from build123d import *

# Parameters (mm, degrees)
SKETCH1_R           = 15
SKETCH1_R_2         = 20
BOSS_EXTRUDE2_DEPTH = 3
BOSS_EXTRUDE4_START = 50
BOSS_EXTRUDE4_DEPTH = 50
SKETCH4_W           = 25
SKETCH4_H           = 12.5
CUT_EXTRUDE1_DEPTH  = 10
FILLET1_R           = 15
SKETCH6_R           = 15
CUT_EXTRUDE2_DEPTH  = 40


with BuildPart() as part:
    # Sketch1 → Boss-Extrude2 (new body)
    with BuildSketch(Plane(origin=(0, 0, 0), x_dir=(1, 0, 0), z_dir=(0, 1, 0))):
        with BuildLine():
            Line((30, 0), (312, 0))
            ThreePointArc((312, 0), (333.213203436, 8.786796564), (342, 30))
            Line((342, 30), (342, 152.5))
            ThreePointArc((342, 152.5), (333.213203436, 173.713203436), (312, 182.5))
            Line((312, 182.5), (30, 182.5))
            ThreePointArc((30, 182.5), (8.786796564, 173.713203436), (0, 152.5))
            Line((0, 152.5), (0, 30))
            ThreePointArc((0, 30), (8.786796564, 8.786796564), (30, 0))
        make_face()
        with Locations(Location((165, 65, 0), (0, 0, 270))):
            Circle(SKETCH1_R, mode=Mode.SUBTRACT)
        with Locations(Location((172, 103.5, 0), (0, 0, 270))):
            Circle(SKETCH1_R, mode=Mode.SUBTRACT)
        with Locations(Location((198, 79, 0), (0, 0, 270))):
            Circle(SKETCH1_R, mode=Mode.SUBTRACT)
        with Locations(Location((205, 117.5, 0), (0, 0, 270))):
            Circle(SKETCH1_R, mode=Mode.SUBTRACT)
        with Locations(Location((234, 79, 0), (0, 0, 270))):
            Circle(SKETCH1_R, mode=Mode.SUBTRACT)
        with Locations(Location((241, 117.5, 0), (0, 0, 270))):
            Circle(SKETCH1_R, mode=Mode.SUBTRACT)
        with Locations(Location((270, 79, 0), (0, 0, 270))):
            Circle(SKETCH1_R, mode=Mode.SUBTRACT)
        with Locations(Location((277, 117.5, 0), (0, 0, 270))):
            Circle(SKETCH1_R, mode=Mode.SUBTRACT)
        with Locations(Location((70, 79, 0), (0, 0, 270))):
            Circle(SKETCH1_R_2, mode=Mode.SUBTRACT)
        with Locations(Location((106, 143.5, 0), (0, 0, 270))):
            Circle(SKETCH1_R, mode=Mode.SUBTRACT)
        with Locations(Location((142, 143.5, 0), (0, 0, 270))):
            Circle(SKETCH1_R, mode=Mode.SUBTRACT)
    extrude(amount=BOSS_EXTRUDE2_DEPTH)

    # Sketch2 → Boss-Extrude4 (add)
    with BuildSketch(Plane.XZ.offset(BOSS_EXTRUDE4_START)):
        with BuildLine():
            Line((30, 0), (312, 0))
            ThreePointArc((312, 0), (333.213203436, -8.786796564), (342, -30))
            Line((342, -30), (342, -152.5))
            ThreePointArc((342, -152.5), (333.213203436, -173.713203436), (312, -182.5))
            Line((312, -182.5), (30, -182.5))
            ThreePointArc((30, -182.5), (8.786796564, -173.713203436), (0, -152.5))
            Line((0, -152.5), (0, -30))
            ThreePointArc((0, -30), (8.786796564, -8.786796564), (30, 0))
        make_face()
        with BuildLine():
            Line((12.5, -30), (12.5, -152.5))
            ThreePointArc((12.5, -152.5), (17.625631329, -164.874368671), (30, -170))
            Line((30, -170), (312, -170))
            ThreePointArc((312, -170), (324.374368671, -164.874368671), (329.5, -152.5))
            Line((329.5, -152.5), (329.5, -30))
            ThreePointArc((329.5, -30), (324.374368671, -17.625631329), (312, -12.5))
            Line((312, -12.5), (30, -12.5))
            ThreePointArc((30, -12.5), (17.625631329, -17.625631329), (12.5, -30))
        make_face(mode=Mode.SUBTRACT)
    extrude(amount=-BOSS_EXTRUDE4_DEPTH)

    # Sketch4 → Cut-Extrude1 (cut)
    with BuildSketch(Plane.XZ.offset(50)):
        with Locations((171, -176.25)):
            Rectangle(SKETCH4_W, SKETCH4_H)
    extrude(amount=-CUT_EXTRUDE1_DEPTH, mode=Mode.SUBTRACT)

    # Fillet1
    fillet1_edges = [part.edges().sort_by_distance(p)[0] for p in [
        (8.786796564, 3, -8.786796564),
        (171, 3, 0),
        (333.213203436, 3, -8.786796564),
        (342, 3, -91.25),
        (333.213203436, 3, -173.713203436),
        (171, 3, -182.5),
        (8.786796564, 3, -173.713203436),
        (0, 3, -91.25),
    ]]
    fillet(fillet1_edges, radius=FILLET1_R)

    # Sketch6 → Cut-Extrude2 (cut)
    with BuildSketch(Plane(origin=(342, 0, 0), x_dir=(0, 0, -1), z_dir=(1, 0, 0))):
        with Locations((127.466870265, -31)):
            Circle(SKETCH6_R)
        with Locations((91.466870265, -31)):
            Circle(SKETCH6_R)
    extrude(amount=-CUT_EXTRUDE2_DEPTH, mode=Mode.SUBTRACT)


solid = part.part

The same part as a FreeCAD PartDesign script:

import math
import FreeCAD as App
import Part
import Sketcher

V = App.Vector
Q = App.Units.Quantity


def edges_at(feature, points):
    """Names of the edges that pass closest to the given points."""
    edges = feature.Shape.Edges
    near = lambda p: min(range(len(edges)), key=lambda i: edges[i].distToShape(Part.Vertex(*p))[0])
    return sorted({f"Edge{near(p) + 1}" for p in points})

doc = App.newDocument("Part")
body = doc.addObject("PartDesign::Body", "Body")

# Sketch on XZ plane
sketch1 = body.newObject("Sketcher::SketchObject", "Sketch")
sketch1.AttachmentSupport = (doc.getObject("XZ_Plane"), [""])
sketch1.MapMode = "FlatFace"
sketch1.addGeometry(Part.LineSegment(V(30, 0, 0), V(312, 0, 0)), False)
sketch1.addGeometry(Part.ArcOfCircle(Part.Circle(V(312, -30, 0), V(0, 0, 1), 30), math.radians(0), math.radians(90)), False)
sketch1.addGeometry(Part.LineSegment(V(342, -30, 0), V(342, -152, 0)), False)
sketch1.addGeometry(Part.ArcOfCircle(Part.Circle(V(312, -153, 0), V(0, 0, 1), 30), math.radians(-90), math.radians(0)), False)
sketch1.addGeometry(Part.LineSegment(V(312, -182, 0), V(30, -182, 0)), False)
sketch1.addGeometry(Part.ArcOfCircle(Part.Circle(V(30, -153, 0), V(0, 0, 1), 30), math.radians(180), math.radians(270)), False)
sketch1.addGeometry(Part.LineSegment(V(0, -152, 0), V(0, -30, 0)), False)
sketch1.addGeometry(Part.ArcOfCircle(Part.Circle(V(30, -30, 0), V(0, 0, 1), 30), math.radians(90), math.radians(180)), False)
sketch1.addGeometry(Part.Circle(V(165, -65, 0), V(0, 0, 1), 15), False)
sketch1.addGeometry(Part.Circle(V(70, -79, 0), V(0, 0, 1), 20), False)
sketch1.addGeometry(Part.Circle(V(198, -79, 0), V(0, 0, 1), 15), False)
sketch1.addGeometry(Part.Circle(V(172, -104, 0), V(0, 0, 1), 15), False)
sketch1.addGeometry(Part.Circle(V(234, -79, 0), V(0, 0, 1), 15), False)
sketch1.addGeometry(Part.Circle(V(270, -79, 0), V(0, 0, 1), 15), False)
sketch1.addGeometry(Part.Circle(V(106, -144, 0), V(0, 0, 1), 15), False)
sketch1.addGeometry(Part.Circle(V(142, -144, 0), V(0, 0, 1), 15), False)
sketch1.addGeometry(Part.Circle(V(205, -118, 0), V(0, 0, 1), 15), False)
sketch1.addGeometry(Part.Circle(V(241, -118, 0), V(0, 0, 1), 15), False)
sketch1.addGeometry(Part.Circle(V(277, -118, 0), V(0, 0, 1), 15), False)
sketch1.addConstraint(Sketcher.Constraint("Tangent", 0, 2, 1, 2))
sketch1.addConstraint(Sketcher.Constraint("Tangent", 1, 1, 2, 1))
sketch1.addConstraint(Sketcher.Constraint("Tangent", 2, 2, 3, 2))
sketch1.addConstraint(Sketcher.Constraint("Tangent", 3, 1, 4, 1))
sketch1.addConstraint(Sketcher.Constraint("Tangent", 4, 2, 5, 2))
sketch1.addConstraint(Sketcher.Constraint("Tangent", 5, 1, 6, 1))
sketch1.addConstraint(Sketcher.Constraint("Tangent", 6, 2, 7, 2))
sketch1.addConstraint(Sketcher.Constraint("Tangent", 7, 1, 0, 1))
sketch1.addConstraint(Sketcher.Constraint("Horizontal", 0))
sketch1.addConstraint(Sketcher.Constraint("Vertical", 2))
sketch1.addConstraint(Sketcher.Constraint("Horizontal", 4))
sketch1.addConstraint(Sketcher.Constraint("Vertical", 6))
sketch1.addConstraint(Sketcher.Constraint("Equal", 1, 3))
sketch1.addConstraint(Sketcher.Constraint("Equal", 3, 5))
sketch1.addConstraint(Sketcher.Constraint("Equal", 5, 7))
sketch1.addConstraint(Sketcher.Constraint("Equal", 8, 10))
sketch1.addConstraint(Sketcher.Constraint("Equal", 10, 11))
sketch1.addConstraint(Sketcher.Constraint("Equal", 11, 12))
sketch1.addConstraint(Sketcher.Constraint("Equal", 12, 13))
sketch1.addConstraint(Sketcher.Constraint("Equal", 13, 14))
sketch1.addConstraint(Sketcher.Constraint("Equal", 14, 15))
sketch1.addConstraint(Sketcher.Constraint("Equal", 15, 16))
sketch1.addConstraint(Sketcher.Constraint("Equal", 16, 17))
sketch1.addConstraint(Sketcher.Constraint("Equal", 17, 18))
sketch1.addConstraint(Sketcher.Constraint("PointOnObject", 0, 2, -1))
sketch1.addConstraint(Sketcher.Constraint("PointOnObject", 5, 1, -2))
sketch1.addConstraint(Sketcher.Constraint("Horizontal", 9, 3, 10, 3))
sketch1.addConstraint(Sketcher.Constraint("Horizontal", 10, 3, 12, 3))
sketch1.addConstraint(Sketcher.Constraint("Horizontal", 12, 3, 13, 3))
sketch1.addConstraint(Sketcher.Constraint("Horizontal", 14, 3, 15, 3))
sketch1.addConstraint(Sketcher.Constraint("Horizontal", 16, 3, 17, 3))
sketch1.addConstraint(Sketcher.Constraint("Horizontal", 17, 3, 18, 3))
sketch1.addConstraint(Sketcher.Constraint("Diameter", 8, Q("30 mm")))
sketch1.addConstraint(Sketcher.Constraint("Diameter", 9, Q("40 mm")))
sketch1.addConstraint(Sketcher.Constraint("Radius", 1, Q("30 mm")))
sketch1.addConstraint(Sketcher.Constraint("DistanceX", 0, 1, 0, 2, Q("282 mm")))
sketch1.addConstraint(Sketcher.Constraint("DistanceY", 2, 2, 2, 1, Q("122.5 mm")))
sketch1.addConstraint(Sketcher.Constraint("DistanceX", -1, 1, 8, 3, Q("165 mm")))
sketch1.addConstraint(Sketcher.Constraint("DistanceY", 8, 3, -1, 1, Q("65 mm")))
sketch1.addConstraint(Sketcher.Constraint("DistanceX", -1, 1, 9, 3, Q("70 mm")))
sketch1.addConstraint(Sketcher.Constraint("DistanceY", 9, 3, -1, 1, Q("79 mm")))
sketch1.addConstraint(Sketcher.Constraint("DistanceX", -1, 1, 10, 3, Q("198 mm")))
sketch1.addConstraint(Sketcher.Constraint("DistanceX", -1, 1, 11, 3, Q("172 mm")))
sketch1.addConstraint(Sketcher.Constraint("DistanceX", -1, 1, 12, 3, Q("234 mm")))
sketch1.addConstraint(Sketcher.Constraint("DistanceX", -1, 1, 13, 3, Q("270 mm")))
sketch1.addConstraint(Sketcher.Constraint("DistanceX", -1, 1, 14, 3, Q("106 mm")))
sketch1.addConstraint(Sketcher.Constraint("DistanceX", -1, 1, 15, 3, Q("142 mm")))
sketch1.addConstraint(Sketcher.Constraint("DistanceX", -1, 1, 16, 3, Q("205 mm")))
sketch1.addConstraint(Sketcher.Constraint("DistanceX", -1, 1, 17, 3, Q("241 mm")))
sketch1.addConstraint(Sketcher.Constraint("DistanceX", -1, 1, 18, 3, Q("277 mm")))
sketch1.addConstraint(Sketcher.Constraint("DistanceY", 3, 3, 11, 3, Q("49 mm")))
sketch1.addConstraint(Sketcher.Constraint("DistanceY", 5, 3, 14, 3, Q("9 mm")))
sketch1.addConstraint(Sketcher.Constraint("DistanceY", 16, 3, 11, 3, Q("14 mm")))
pad1 = body.newObject("PartDesign::Pad", "Pad")
pad1.Profile = sketch1
pad1.Length = 3
pad1.Reversed = True

# Sketch on XZ plane
sketch2 = body.newObject("Sketcher::SketchObject", "Sketch001")
sketch2.AttachmentSupport = (doc.getObject("XZ_Plane"), [""])
sketch2.MapMode = "FlatFace"
sketch2.AttachmentOffset = App.Placement(V(0, 0, 50), App.Rotation())
sketch2.addGeometry(Part.LineSegment(V(312, 0, 0), V(30, 0, 0)), False)
sketch2.addGeometry(Part.ArcOfCircle(Part.Circle(V(30, -30, 0), V(0, 0, 1), 30), math.radians(90), math.radians(180)), False)
sketch2.addGeometry(Part.LineSegment(V(0, -30, 0), V(0, -152, 0)), False)
sketch2.addGeometry(Part.ArcOfCircle(Part.Circle(V(30, -153, 0), V(0, 0, 1), 30), math.radians(180), math.radians(270)), False)
sketch2.addGeometry(Part.LineSegment(V(30, -182, 0), V(312, -182, 0)), False)
sketch2.addGeometry(Part.ArcOfCircle(Part.Circle(V(312, -153, 0), V(0, 0, 1), 30), math.radians(-90), math.radians(0)), False)
sketch2.addGeometry(Part.LineSegment(V(342, -152, 0), V(342, -30, 0)), False)
sketch2.addGeometry(Part.ArcOfCircle(Part.Circle(V(312, -30, 0), V(0, 0, 1), 30), math.radians(0), math.radians(90)), False)
sketch2.addGeometry(Part.ArcOfCircle(Part.Circle(V(30, -30, 0), V(0, 0, 1), 17), math.radians(90), math.radians(180)), False)
sketch2.addGeometry(Part.LineSegment(V(30, -12, 0), V(312, -12, 0)), False)
sketch2.addGeometry(Part.ArcOfCircle(Part.Circle(V(312, -30, 0), V(0, 0, 1), 17), math.radians(0), math.radians(90)), False)
sketch2.addGeometry(Part.LineSegment(V(330, -30, 0), V(330, -152, 0)), False)
sketch2.addGeometry(Part.ArcOfCircle(Part.Circle(V(312, -153, 0), V(0, 0, 1), 17), math.radians(-90), math.radians(0)), False)
sketch2.addGeometry(Part.LineSegment(V(312, -170, 0), V(30, -170, 0)), False)
sketch2.addGeometry(Part.ArcOfCircle(Part.Circle(V(30, -153, 0), V(0, 0, 1), 17), math.radians(180), math.radians(270)), False)
sketch2.addGeometry(Part.LineSegment(V(12, -152, 0), V(12, -30, 0)), False)
sketch2.addConstraint(Sketcher.Constraint("Tangent", 0, 2, 1, 1))
sketch2.addConstraint(Sketcher.Constraint("Tangent", 1, 2, 2, 1))
sketch2.addConstraint(Sketcher.Constraint("Tangent", 2, 2, 3, 1))
sketch2.addConstraint(Sketcher.Constraint("Tangent", 3, 2, 4, 1))
sketch2.addConstraint(Sketcher.Constraint("Tangent", 4, 2, 5, 1))
sketch2.addConstraint(Sketcher.Constraint("Tangent", 5, 2, 6, 1))
sketch2.addConstraint(Sketcher.Constraint("Tangent", 6, 2, 7, 1))
sketch2.addConstraint(Sketcher.Constraint("Tangent", 7, 2, 0, 1))
sketch2.addConstraint(Sketcher.Constraint("Tangent", 8, 1, 9, 1))
sketch2.addConstraint(Sketcher.Constraint("Tangent", 9, 2, 10, 2))
sketch2.addConstraint(Sketcher.Constraint("Tangent", 10, 1, 11, 1))
sketch2.addConstraint(Sketcher.Constraint("Tangent", 11, 2, 12, 2))
sketch2.addConstraint(Sketcher.Constraint("Tangent", 12, 1, 13, 1))
sketch2.addConstraint(Sketcher.Constraint("Tangent", 13, 2, 14, 2))
sketch2.addConstraint(Sketcher.Constraint("Tangent", 14, 1, 15, 1))
sketch2.addConstraint(Sketcher.Constraint("Tangent", 15, 2, 8, 2))
sketch2.addConstraint(Sketcher.Constraint("Horizontal", 0))
sketch2.addConstraint(Sketcher.Constraint("Vertical", 2))
sketch2.addConstraint(Sketcher.Constraint("Horizontal", 4))
sketch2.addConstraint(Sketcher.Constraint("Vertical", 6))
sketch2.addConstraint(Sketcher.Constraint("Horizontal", 9))
sketch2.addConstraint(Sketcher.Constraint("Vertical", 11))
sketch2.addConstraint(Sketcher.Constraint("Horizontal", 13))
sketch2.addConstraint(Sketcher.Constraint("Vertical", 15))
sketch2.addConstraint(Sketcher.Constraint("Coincident", 8, 3, 1, 3))
sketch2.addConstraint(Sketcher.Constraint("Coincident", 10, 3, 7, 3))
sketch2.addConstraint(Sketcher.Constraint("Coincident", 12, 3, 5, 3))
sketch2.addConstraint(Sketcher.Constraint("Equal", 1, 3))
sketch2.addConstraint(Sketcher.Constraint("Equal", 3, 5))
sketch2.addConstraint(Sketcher.Constraint("Equal", 5, 7))
sketch2.addConstraint(Sketcher.Constraint("Equal", 12, 14))
sketch2.addConstraint(Sketcher.Constraint("PointOnObject", 0, 2, -1))
sketch2.addConstraint(Sketcher.Constraint("PointOnObject", 1, 2, -2))
sketch2.addConstraint(Sketcher.Constraint("Radius", 1, Q("30 mm")))
sketch2.addConstraint(Sketcher.Constraint("Radius", 8, Q("17.5 mm")))
sketch2.addConstraint(Sketcher.Constraint("DistanceX", 0, 2, 0, 1, Q("282 mm")))
sketch2.addConstraint(Sketcher.Constraint("DistanceY", 2, 2, 2, 1, Q("122.5 mm")))
pad2 = body.newObject("PartDesign::Pad", "Pad001")
pad2.Profile = sketch2
pad2.Length = 50
pad2.Reversed = True

# Sketch on XZ plane
sketch3 = body.newObject("Sketcher::SketchObject", "Sketch002")
sketch3.AttachmentSupport = (doc.getObject("XZ_Plane"), [""])
sketch3.MapMode = "FlatFace"
sketch3.AttachmentOffset = App.Placement(V(0, 0, 50), App.Rotation())
sketch3.addGeometry(Part.LineSegment(V(158, -170, 0), V(158, -182, 0)), False)
sketch3.addGeometry(Part.LineSegment(V(158, -182, 0), V(184, -182, 0)), False)
sketch3.addGeometry(Part.LineSegment(V(184, -182, 0), V(184, -170, 0)), False)
sketch3.addGeometry(Part.LineSegment(V(184, -170, 0), V(158, -170, 0)), False)
sketch3.addConstraint(Sketcher.Constraint("Coincident", 0, 2, 1, 1))
sketch3.addConstraint(Sketcher.Constraint("Coincident", 1, 2, 2, 1))
sketch3.addConstraint(Sketcher.Constraint("Coincident", 2, 2, 3, 1))
sketch3.addConstraint(Sketcher.Constraint("Coincident", 3, 2, 0, 1))
sketch3.addConstraint(Sketcher.Constraint("Vertical", 0))
sketch3.addConstraint(Sketcher.Constraint("Horizontal", 1))
sketch3.addConstraint(Sketcher.Constraint("Vertical", 2))
sketch3.addConstraint(Sketcher.Constraint("Horizontal", 3))
sketch3.addConstraint(Sketcher.Constraint("DistanceX", 1, 1, 1, 2, Q("25 mm")))
sketch3.addConstraint(Sketcher.Constraint("DistanceY", 0, 2, 0, 1, Q("12.5 mm")))
sketch3.addConstraint(Sketcher.Constraint("DistanceY", 2, 2, -1, 1, Q("170 mm")))
sketch3.addConstraint(Sketcher.Constraint("DistanceX", -1, 1, 0, 2, Q("158.5 mm")))
pocket1 = body.newObject("PartDesign::Pocket", "Pocket")
pocket1.Profile = sketch3
pocket1.Length = 10
doc.recompute()

fillet = body.newObject("PartDesign::Fillet", "Fillet")
fillet.Base = (pocket1, edges_at(pocket1, [
    (8.787, 3, -8.787),
    (171, 3, 0),
    (333.213, 3, -8.787),
    (342, 3, -91.25),
    (333.213, 3, -173.713),
    (171, 3, -182.5),
    (8.787, 3, -173.713),
    (0, 3, -91.25),
]))
fillet.Radius = 15

# Sketch on YZ plane
sketch4 = body.newObject("Sketcher::SketchObject", "Sketch003")
sketch4.AttachmentSupport = (doc.getObject("YZ_Plane"), [""])
sketch4.MapMode = "FlatFace"
sketch4.AttachmentOffset = App.Placement(V(0, 0, 342), App.Rotation())
sketch4.addGeometry(Part.Circle(V(-31, -127, 0), V(0, 0, 1), 15), False)
sketch4.addGeometry(Part.Circle(V(-31, -91, 0), V(0, 0, 1), 15), False)
sketch4.addConstraint(Sketcher.Constraint("Equal", 0, 1))
sketch4.addConstraint(Sketcher.Constraint("Vertical", 0, 3, 1, 3))
sketch4.addConstraint(Sketcher.Constraint("Diameter", 0, Q("30 mm")))
sketch4.addConstraint(Sketcher.Constraint("DistanceX", 0, 3, -1, 1, Q("31 mm")))
sketch4.addConstraint(Sketcher.Constraint("DistanceY", 0, 3, 1, 3, Q("36 mm")))
sketch4.addConstraint(Sketcher.Constraint("DistanceY", 0, 3, -1, 1, Q("127.46687 mm")))
pocket2 = body.newObject("PartDesign::Pocket", "Pocket001")
pocket2.Profile = sketch4
pocket2.Length = 40

doc.recompute()
